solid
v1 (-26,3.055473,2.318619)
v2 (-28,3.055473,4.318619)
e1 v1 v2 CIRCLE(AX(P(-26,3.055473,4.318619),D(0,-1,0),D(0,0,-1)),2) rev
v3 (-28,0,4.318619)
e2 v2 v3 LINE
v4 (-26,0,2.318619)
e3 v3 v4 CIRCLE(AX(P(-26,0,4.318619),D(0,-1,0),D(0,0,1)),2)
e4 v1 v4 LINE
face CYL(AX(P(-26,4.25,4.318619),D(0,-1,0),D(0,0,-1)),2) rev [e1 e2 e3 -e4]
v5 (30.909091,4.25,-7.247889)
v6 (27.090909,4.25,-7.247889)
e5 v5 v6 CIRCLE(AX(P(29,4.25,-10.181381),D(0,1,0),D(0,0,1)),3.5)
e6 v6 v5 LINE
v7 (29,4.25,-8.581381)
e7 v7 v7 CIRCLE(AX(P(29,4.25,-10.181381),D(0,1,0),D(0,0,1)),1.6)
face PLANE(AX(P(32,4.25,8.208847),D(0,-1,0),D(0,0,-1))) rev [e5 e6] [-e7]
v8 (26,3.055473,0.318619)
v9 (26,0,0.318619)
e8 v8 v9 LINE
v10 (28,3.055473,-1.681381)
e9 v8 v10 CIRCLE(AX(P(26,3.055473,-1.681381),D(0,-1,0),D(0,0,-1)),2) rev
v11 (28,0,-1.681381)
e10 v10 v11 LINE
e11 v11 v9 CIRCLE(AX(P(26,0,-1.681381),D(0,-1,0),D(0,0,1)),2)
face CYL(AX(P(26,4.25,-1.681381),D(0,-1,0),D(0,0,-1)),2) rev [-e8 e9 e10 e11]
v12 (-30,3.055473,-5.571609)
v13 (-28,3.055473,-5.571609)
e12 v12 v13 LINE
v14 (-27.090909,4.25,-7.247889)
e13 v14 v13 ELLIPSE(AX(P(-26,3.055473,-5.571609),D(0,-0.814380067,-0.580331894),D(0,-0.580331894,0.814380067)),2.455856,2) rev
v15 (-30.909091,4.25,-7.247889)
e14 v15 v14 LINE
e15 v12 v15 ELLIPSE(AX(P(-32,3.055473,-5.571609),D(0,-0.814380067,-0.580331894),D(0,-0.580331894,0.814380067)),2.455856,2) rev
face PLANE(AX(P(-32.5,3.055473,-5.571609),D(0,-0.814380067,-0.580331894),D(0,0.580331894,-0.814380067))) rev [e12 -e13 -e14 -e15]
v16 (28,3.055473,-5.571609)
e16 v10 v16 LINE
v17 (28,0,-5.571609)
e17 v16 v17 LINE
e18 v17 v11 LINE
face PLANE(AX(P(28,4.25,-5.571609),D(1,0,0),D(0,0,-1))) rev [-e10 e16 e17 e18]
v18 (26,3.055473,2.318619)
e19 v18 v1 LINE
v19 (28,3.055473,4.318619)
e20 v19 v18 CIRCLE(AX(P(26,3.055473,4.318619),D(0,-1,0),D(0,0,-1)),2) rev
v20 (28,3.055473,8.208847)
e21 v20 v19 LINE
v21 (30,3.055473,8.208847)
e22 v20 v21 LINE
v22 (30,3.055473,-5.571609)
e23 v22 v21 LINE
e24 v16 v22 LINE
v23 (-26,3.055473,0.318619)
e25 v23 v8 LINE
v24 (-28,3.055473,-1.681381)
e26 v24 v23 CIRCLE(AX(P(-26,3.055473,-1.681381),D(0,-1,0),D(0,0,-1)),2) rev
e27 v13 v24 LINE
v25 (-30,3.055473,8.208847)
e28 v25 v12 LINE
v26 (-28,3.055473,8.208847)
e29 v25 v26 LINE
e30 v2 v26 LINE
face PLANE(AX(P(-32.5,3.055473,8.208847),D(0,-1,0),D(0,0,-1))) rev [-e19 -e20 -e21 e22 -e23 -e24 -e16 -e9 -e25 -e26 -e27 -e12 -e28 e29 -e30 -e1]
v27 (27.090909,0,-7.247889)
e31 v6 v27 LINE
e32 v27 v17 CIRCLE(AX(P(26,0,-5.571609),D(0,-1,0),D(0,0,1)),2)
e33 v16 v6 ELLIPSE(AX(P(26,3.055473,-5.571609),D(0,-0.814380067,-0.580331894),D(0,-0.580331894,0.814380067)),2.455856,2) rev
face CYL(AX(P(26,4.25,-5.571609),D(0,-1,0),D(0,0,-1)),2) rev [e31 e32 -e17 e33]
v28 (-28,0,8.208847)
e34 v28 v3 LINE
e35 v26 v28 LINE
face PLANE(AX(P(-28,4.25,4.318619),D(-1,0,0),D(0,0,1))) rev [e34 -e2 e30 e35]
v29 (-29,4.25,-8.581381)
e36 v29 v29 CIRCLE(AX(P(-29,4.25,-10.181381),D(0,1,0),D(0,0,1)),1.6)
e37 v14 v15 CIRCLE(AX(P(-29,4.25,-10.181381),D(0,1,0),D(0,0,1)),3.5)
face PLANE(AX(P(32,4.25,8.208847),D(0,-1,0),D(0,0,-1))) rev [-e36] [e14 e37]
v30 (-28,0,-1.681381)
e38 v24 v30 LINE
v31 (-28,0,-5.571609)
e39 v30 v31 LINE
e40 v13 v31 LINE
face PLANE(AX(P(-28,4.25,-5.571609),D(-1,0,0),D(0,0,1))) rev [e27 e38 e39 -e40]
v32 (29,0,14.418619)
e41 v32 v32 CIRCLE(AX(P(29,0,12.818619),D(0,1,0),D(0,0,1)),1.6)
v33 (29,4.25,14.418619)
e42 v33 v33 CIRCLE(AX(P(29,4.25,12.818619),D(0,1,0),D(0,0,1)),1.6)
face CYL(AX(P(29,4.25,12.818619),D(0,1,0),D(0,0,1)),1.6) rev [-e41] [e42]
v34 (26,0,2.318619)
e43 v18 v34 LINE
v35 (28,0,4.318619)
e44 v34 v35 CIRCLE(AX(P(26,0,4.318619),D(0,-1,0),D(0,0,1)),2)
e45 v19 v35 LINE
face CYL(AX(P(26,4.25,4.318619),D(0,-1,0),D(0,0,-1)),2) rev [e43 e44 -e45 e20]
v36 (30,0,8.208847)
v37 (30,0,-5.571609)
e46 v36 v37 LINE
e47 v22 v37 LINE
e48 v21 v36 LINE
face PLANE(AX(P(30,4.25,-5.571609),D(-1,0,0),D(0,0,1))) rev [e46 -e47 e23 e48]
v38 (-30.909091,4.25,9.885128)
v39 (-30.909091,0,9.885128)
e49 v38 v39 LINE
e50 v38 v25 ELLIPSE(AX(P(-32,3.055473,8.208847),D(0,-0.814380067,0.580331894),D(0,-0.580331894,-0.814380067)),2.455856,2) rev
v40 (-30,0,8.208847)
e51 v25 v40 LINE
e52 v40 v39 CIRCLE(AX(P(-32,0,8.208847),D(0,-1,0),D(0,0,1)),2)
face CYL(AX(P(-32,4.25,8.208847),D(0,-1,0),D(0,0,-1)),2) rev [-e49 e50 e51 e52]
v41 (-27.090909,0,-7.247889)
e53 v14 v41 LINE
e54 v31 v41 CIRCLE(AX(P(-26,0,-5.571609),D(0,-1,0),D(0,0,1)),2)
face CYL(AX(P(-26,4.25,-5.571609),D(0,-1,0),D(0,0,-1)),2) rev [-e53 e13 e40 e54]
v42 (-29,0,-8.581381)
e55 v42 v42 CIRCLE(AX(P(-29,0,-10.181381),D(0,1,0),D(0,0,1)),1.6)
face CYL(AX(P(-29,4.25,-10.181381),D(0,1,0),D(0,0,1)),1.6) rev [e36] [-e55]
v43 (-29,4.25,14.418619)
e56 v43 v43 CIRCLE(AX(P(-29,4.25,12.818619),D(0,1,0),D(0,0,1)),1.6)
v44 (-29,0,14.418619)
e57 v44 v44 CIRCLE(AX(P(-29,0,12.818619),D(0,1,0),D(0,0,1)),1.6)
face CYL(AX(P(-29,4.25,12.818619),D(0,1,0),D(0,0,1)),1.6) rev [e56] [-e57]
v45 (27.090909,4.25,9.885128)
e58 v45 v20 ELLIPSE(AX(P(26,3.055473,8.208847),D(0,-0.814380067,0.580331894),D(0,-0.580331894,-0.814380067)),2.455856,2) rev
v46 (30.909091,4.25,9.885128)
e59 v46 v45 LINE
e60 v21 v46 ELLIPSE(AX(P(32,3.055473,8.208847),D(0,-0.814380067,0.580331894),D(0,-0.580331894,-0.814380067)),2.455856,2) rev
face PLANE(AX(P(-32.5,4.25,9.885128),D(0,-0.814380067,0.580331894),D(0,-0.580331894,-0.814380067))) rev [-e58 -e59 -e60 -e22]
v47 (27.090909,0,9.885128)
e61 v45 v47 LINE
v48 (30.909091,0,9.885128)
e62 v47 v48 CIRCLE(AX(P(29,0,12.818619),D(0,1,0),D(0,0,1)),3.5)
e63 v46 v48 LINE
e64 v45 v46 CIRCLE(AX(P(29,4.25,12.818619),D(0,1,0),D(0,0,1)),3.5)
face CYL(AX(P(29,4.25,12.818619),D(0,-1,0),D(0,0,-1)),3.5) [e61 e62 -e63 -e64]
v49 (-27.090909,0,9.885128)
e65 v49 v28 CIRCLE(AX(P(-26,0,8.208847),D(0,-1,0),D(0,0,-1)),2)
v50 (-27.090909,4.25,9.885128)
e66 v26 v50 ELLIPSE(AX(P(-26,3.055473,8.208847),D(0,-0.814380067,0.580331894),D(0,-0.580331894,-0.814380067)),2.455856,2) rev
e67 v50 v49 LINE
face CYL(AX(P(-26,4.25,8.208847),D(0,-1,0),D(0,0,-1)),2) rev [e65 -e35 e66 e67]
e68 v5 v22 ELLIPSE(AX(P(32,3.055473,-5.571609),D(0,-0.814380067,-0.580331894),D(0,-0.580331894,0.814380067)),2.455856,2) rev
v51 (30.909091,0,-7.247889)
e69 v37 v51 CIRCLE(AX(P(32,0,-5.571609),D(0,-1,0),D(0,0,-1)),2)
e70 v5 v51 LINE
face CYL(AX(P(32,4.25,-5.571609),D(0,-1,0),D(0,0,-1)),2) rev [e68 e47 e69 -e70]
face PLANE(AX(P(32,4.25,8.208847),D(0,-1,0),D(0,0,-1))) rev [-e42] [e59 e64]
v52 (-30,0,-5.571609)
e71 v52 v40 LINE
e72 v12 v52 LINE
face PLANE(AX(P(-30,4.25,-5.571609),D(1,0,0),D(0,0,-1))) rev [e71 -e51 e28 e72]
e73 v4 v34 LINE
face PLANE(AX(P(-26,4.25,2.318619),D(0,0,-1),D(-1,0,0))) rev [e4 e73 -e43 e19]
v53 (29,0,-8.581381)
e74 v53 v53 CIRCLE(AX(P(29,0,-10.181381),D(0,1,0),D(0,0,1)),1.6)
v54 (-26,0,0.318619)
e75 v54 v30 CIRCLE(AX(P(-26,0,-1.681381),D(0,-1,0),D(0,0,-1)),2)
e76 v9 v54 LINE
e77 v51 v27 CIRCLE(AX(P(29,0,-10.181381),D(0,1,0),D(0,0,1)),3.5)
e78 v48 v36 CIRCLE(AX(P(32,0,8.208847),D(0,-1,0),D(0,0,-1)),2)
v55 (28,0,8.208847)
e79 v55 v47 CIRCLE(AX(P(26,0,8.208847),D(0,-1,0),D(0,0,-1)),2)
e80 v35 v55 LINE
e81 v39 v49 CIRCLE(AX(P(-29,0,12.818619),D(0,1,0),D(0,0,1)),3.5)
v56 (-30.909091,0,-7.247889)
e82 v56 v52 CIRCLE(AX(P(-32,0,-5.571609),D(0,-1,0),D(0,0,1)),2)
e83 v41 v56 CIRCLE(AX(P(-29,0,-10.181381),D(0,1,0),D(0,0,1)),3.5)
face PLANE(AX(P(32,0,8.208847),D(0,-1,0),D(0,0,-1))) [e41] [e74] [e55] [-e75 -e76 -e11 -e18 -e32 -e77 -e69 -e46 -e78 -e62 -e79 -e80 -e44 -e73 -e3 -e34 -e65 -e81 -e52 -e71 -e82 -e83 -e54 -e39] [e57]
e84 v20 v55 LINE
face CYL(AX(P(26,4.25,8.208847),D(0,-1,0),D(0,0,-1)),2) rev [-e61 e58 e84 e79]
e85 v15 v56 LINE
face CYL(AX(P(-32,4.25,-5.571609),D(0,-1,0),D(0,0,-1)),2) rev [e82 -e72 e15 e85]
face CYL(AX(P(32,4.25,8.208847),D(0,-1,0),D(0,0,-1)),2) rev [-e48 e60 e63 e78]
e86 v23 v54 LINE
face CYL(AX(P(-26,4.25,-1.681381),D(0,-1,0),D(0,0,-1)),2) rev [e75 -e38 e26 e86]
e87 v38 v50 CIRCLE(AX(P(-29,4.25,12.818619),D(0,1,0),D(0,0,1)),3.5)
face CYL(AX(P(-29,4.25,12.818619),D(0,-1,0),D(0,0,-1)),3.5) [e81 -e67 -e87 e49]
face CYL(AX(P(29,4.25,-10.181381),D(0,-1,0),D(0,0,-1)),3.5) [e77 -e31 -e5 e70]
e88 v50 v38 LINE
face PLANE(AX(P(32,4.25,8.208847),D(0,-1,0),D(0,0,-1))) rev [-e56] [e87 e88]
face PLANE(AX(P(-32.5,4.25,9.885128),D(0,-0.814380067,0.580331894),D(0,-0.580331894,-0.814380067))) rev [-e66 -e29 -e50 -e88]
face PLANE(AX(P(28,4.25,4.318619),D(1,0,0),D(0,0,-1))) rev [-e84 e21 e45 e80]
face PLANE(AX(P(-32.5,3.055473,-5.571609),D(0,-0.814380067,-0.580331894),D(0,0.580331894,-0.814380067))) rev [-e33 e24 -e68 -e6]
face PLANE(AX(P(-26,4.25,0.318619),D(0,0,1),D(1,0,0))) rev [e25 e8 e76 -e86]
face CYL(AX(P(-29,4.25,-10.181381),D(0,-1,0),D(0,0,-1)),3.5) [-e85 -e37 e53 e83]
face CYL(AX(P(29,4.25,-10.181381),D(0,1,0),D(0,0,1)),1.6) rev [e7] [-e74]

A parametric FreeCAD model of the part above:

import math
import FreeCAD as App
import Part
import Sketcher
Q = App.Units.Quantity

doc = App.newDocument("Part")
body = doc.addObject("PartDesign::Body", "Body")

# Sketch on XZ plane
sketch1 = doc.addObject("Sketcher::SketchObject", "Sketch")
body.addObject(sketch1)
sketch1.AttachmentSupport = (doc.XZ_Plane, [""])
sketch1.MapMode = "FlatFace"
sketch1.addGeometry(Part.LineSegment(App.Vector(-26, 2.318619, 0), App.Vector(26, 2.318619, 0)), False)
sketch1.addGeometry(Part.ArcOfCircle(Part.Circle(App.Vector(26, 4.318619, 0), App.Vector(0, 0, 1), 2), math.radians(-90), math.radians(0)), False)
sketch1.addGeometry(Part.LineSegment(App.Vector(28, 4.318619, 0), App.Vector(28, 8.208847, 0)), False)
sketch1.addGeometry(Part.ArcOfCircle(Part.Circle(App.Vector(26, 8.208847, 0), App.Vector(0, 0, 1), 2), math.radians(0), math.radians(56.944269)), False)
sketch1.addGeometry(Part.ArcOfCircle(Part.Circle(App.Vector(29, 12.818619, 0), App.Vector(0, 0, 1), 3.5), math.radians(-56.944269), math.radians(236.944269)), False)
sketch1.addGeometry(Part.ArcOfCircle(Part.Circle(App.Vector(32, 8.208847, 0), App.Vector(0, 0, 1), 2), math.radians(123.055731), math.radians(180)), False)
sketch1.addGeometry(Part.LineSegment(App.Vector(30, 8.208847, 0), App.Vector(30, -5.571609, 0)), False)
sketch1.addGeometry(Part.ArcOfCircle(Part.Circle(App.Vector(32, -5.571609, 0), App.Vector(0, 0, 1), 2), math.radians(180), math.radians(236.944269)), False)
sketch1.addGeometry(Part.ArcOfCircle(Part.Circle(App.Vector(29, -10.181381, 0), App.Vector(0, 0, 1), 3.5), math.radians(123.055731), math.radians(416.944269)), False)
sketch1.addGeometry(Part.ArcOfCircle(Part.Circle(App.Vector(26, -5.571609, 0), App.Vector(0, 0, 1), 2), math.radians(-56.944269), math.radians(0)), False)
sketch1.addGeometry(Part.LineSegment(App.Vector(28, -5.571609, 0), App.Vector(28, -1.681381, 0)), False)
sketch1.addGeometry(Part.ArcOfCircle(Part.Circle(App.Vector(26, -1.681381, 0), App.Vector(0, 0, 1), 2), math.radians(0), math.radians(90)), False)
sketch1.addGeometry(Part.LineSegment(App.Vector(26, 0.318619, 0), App.Vector(-26, 0.318619, 0)), False)
sketch1.addGeometry(Part.ArcOfCircle(Part.Circle(App.Vector(-26, -1.681381, 0), App.Vector(0, 0, 1), 2), math.radians(90), math.radians(180)), False)
sketch1.addGeometry(Part.LineSegment(App.Vector(-28, -1.681381, 0), App.Vector(-28, -5.571609, 0)), False)
sketch1.addGeometry(Part.ArcOfCircle(Part.Circle(App.Vector(-26, -5.571609, 0), App.Vector(0, 0, 1), 2), math.radians(180), math.radians(236.944269)), False)
sketch1.addGeometry(Part.ArcOfCircle(Part.Circle(App.Vector(-29, -10.181381, 0), App.Vector(0, 0, 1), 3.5), math.radians(123.055731), math.radians(416.944269)), False)
sketch1.addGeometry(Part.ArcOfCircle(Part.Circle(App.Vector(-32, -5.571609, 0), App.Vector(0, 0, 1), 2), math.radians(-56.944269), math.radians(0)), False)
sketch1.addGeometry(Part.LineSegment(App.Vector(-30, -5.571609, 0), App.Vector(-30, 8.208847, 0)), False)
sketch1.addGeometry(Part.ArcOfCircle(Part.Circle(App.Vector(-32, 8.208847, 0), App.Vector(0, 0, 1), 2), math.radians(0), math.radians(56.944269)), False)
sketch1.addGeometry(Part.ArcOfCircle(Part.Circle(App.Vector(-29, 12.818619, 0), App.Vector(0, 0, 1), 3.5), math.radians(-56.944269), math.radians(236.944269)), False)
sketch1.addGeometry(Part.ArcOfCircle(Part.Circle(App.Vector(-26, 8.208847, 0), App.Vector(0, 0, 1), 2), math.radians(123.055731), math.radians(180)), False)
sketch1.addGeometry(Part.LineSegment(App.Vector(-28, 8.208847, 0), App.Vector(-28, 4.318619, 0)), False)
sketch1.addGeometry(Part.ArcOfCircle(Part.Circle(App.Vector(-26, 4.318619, 0), App.Vector(0, 0, 1), 2), math.radians(-180), math.radians(-90)), False)
sketch1.addConstraint(Sketcher.Constraint("Tangent", 0, 2, 1, 1))
sketch1.addConstraint(Sketcher.Constraint("Tangent", 1, 2, 2, 1))
sketch1.addConstraint(Sketcher.Constraint("Tangent", 2, 2, 3, 1))
sketch1.addConstraint(Sketcher.Constraint("Tangent", 3, 2, 4, 2))
sketch1.addConstraint(Sketcher.Constraint("Tangent", 4, 1, 5, 1))
sketch1.addConstraint(Sketcher.Constraint("Tangent", 5, 2, 6, 1))
sketch1.addConstraint(Sketcher.Constraint("Tangent", 6, 2, 7, 1))
sketch1.addConstraint(Sketcher.Constraint("Tangent", 7, 2, 8, 2))
sketch1.addConstraint(Sketcher.Constraint("Tangent", 8, 1, 9, 1))
sketch1.addConstraint(Sketcher.Constraint("Tangent", 9, 2, 10, 1))
sketch1.addConstraint(Sketcher.Constraint("Tangent", 10, 2, 11, 1))
sketch1.addConstraint(Sketcher.Constraint("Tangent", 11, 2, 12, 1))
sketch1.addConstraint(Sketcher.Constraint("Tangent", 12, 2, 13, 1))
sketch1.addConstraint(Sketcher.Constraint("Tangent", 13, 2, 14, 1))
sketch1.addConstraint(Sketcher.Constraint("Tangent", 14, 2, 15, 1))
sketch1.addConstraint(Sketcher.Constraint("Tangent", 15, 2, 16, 2))
sketch1.addConstraint(Sketcher.Constraint("Tangent", 16, 1, 17, 1))
sketch1.addConstraint(Sketcher.Constraint("Tangent", 17, 2, 18, 1))
sketch1.addConstraint(Sketcher.Constraint("Tangent", 18, 2, 19, 1))
sketch1.addConstraint(Sketcher.Constraint("Tangent", 19, 2, 20, 2))
sketch1.addConstraint(Sketcher.Constraint("Tangent", 20, 1, 21, 1))
sketch1.addConstraint(Sketcher.Constraint("Tangent", 21, 2, 22, 1))
sketch1.addConstraint(Sketcher.Constraint("Tangent", 22, 2, 23, 1))
sketch1.addConstraint(Sketcher.Constraint("Tangent", 23, 2, 0, 1))
sketch1.addConstraint(Sketcher.Constraint("Horizontal", 0))
sketch1.addConstraint(Sketcher.Constraint("Vertical", 2))
sketch1.addConstraint(Sketcher.Constraint("Vertical", 6))
sketch1.addConstraint(Sketcher.Constraint("Vertical", 10))
sketch1.addConstraint(Sketcher.Constraint("Horizontal", 12))
sketch1.addConstraint(Sketcher.Constraint("Vertical", 14))
sketch1.addConstraint(Sketcher.Constraint("Vertical", 18))
sketch1.addConstraint(Sketcher.Constraint("Vertical", 22))
sketch1.addConstraint(Sketcher.Constraint("Equal", 1, 3))
sketch1.addConstraint(Sketcher.Constraint("Equal", 3, 5))
sketch1.addConstraint(Sketcher.Constraint("Equal", 5, 7))
sketch1.addConstraint(Sketcher.Constraint("Equal", 4, 8))
sketch1.addConstraint(Sketcher.Constraint("Equal", 7, 9))
sketch1.addConstraint(Sketcher.Constraint("Equal", 9, 11))
sketch1.addConstraint(Sketcher.Constraint("Equal", 11, 13))
sketch1.addConstraint(Sketcher.Constraint("Equal", 13, 15))
sketch1.addConstraint(Sketcher.Constraint("Equal", 8, 16))
sketch1.addConstraint(Sketcher.Constraint("Equal", 15, 17))
sketch1.addConstraint(Sketcher.Constraint("Equal", 17, 19))
sketch1.addConstraint(Sketcher.Constraint("Equal", 16, 20))
sketch1.addConstraint(Sketcher.Constraint("Equal", 19, 21))
sketch1.addConstraint(Sketcher.Constraint("Equal", 21, 23))
sketch1.addConstraint(Sketcher.Constraint("Symmetric", 9, 3, 15, 3, -2))
sketch1.addConstraint(Sketcher.Constraint("Symmetric", 7, 3, 17, 3, -2))
sketch1.addConstraint(Sketcher.Constraint("Symmetric", 4, 3, 20, 3, -2))
sketch1.addConstraint(Sketcher.Constraint("Horizontal", 3, 3, 5, 3))
sketch1.addConstraint(Sketcher.Constraint("Horizontal", 7, 3, 9, 3))
sketch1.addConstraint(Sketcher.Constraint("Horizontal", 19, 3, 21, 3))
sketch1.addConstraint(Sketcher.Constraint("Vertical", 4, 3, 8, 3))
sketch1.addConstraint(Sketcher.Constraint("Equal", 2, 10))
sketch1.addConstraint(Sketcher.Constraint("Radius", 1, Q("2 mm")))
sketch1.addConstraint(Sketcher.Constraint("Radius", 4, Q("3.5 mm")))
sketch1.addConstraint(Sketcher.Constraint("DistanceX", 0, 1, 0, 2, Q("52 mm")))
sketch1.addConstraint(Sketcher.Constraint("DistanceX", -1, 1, 4, 3, Q("29 mm")))
sketch1.addConstraint(Sketcher.Constraint("DistanceY", 8, 3, 4, 3, Q("23 mm")))
sketch1.addConstraint(Sketcher.Constraint("DistanceY", 11, 3, 1, 3, Q("6 mm")))
sketch1.addConstraint(Sketcher.Constraint("DistanceY", -1, 1, 1, 3, Q("4.318619 mm")))
pad1 = doc.addObject("PartDesign::Pad", "Pad")
body.addObject(pad1)
pad1.Profile = sketch1
pad1.Length = 4.25
pad1.Reversed = True

# Sketch on XZ plane
sketch2 = doc.addObject("Sketcher::SketchObject", "Sketch001")
body.addObject(sketch2)
sketch2.AttachmentSupport = (doc.XZ_Plane, [""])
sketch2.MapMode = "FlatFace"
sketch2.AttachmentOffset = App.Placement(App.Vector(0, 0, -4.25), App.Rotation())
sketch2.addGeometry(Part.Circle(App.Vector(-29, 12.818619, 0), App.Vector(0, 0, 1), 1.6), False)
sketch2.addGeometry(Part.Circle(App.Vector(-29, -10.181381, 0), App.Vector(0, 0, 1), 1.6), False)
sketch2.addGeometry(Part.Circle(App.Vector(29, -10.181381, 0), App.Vector(0, 0, 1), 1.6), False)
sketch2.addGeometry(Part.Circle(App.Vector(29, 12.818619, 0), App.Vector(0, 0, 1), 1.6), False)
sketch2.addConstraint(Sketcher.Constraint("Equal", 0, 1))
sketch2.addConstraint(Sketcher.Constraint("Equal", 1, 2))
sketch2.addConstraint(Sketcher.Constraint("Equal", 2, 3))
sketch2.addConstraint(Sketcher.Constraint("Symmetric", 1, 3, 2, 3, -2))
sketch2.addConstraint(Sketcher.Constraint("Symmetric", 0, 3, 3, 3, -2))
sketch2.addConstraint(Sketcher.Constraint("Vertical", 0, 3, 1, 3))
sketch2.addConstraint(Sketcher.Constraint("Diameter", 0, Q("3.2 mm")))
sketch2.addConstraint(Sketcher.Constraint("DistanceX", 0, 3, -1, 1, Q("29 mm")))
sketch2.addConstraint(Sketcher.Constraint("DistanceY", 1, 3, 0, 3, Q("23 mm")))
sketch2.addConstraint(Sketcher.Constraint("DistanceY", -1, 1, 0, 3, Q("12.818619 mm")))
doc.recompute()
hole = doc.addObject("PartDesign::Hole", "Hole")
body.addObject(hole)
hole.Profile = sketch2
hole.ThreadType = "None"
hole.Diameter = 3.2
hole.DepthType = "ThroughAll"
hole.Reversed = True

# Sketch on YZ plane
sketch3 = doc.addObject("Sketcher::SketchObject", "Sketch002")
body.addObject(sketch3)
sketch3.AttachmentSupport = (doc.YZ_Plane, [""])
sketch3.MapMode = "FlatFace"
sketch3.addGeometry(Part.LineSegment(App.Vector(3.055473, 8.208847, 0), App.Vector(3.055473, -5.571609, 0)), False)
sketch3.addGeometry(Part.LineSegment(App.Vector(3.055473, -5.571609, 0), App.Vector(4.25, -7.247889, 0)), False)
sketch3.addGeometry(Part.LineSegment(App.Vector(4.25, -7.247889, 0), App.Vector(4.25, 9.885128, 0)), False)
sketch3.addGeometry(Part.LineSegment(App.Vector(4.25, 9.885128, 0), App.Vector(3.055473, 8.208847, 0)), False)
sketch3.addConstraint(Sketcher.Constraint("Coincident", 0, 2, 1, 1))
sketch3.addConstraint(Sketcher.Constraint("Coincident", 1, 2, 2, 1))
sketch3.addConstraint(Sketcher.Constraint("Coincident", 2, 2, 3, 1))
sketch3.addConstraint(Sketcher.Constraint("Coincident", 3, 2, 0, 1))
sketch3.addConstraint(Sketcher.Constraint("Vertical", 0))
sketch3.addConstraint(Sketcher.Constraint("Vertical", 2))
sketch3.addConstraint(Sketcher.Constraint("Equal", 1, 3))
sketch3.addConstraint(Sketcher.Constraint("DistanceX", -1, 1, 1, 2, Q("4.25 mm")))
sketch3.addConstraint(Sketcher.Constraint("Distance", 1, Q("2.058352 mm")))
sketch3.addConstraint(Sketcher.Constraint("DistanceY", 0, 2, 0, 1, Q("13.780456 mm")))
sketch3.addConstraint(Sketcher.Constraint("DistanceY", 2, 1, 2, 2, Q("17.133017 mm")))
sketch3.addConstraint(Sketcher.Constraint("DistanceY", 0, 2, -1, 1, Q("5.571609 mm")))
pocket1 = doc.addObject("PartDesign::Pocket", "Pocket")
body.addObject(pocket1)
pocket1.Profile = sketch3
pocket1.Type = "ThroughAll"
pocket1.Midplane = True

doc.recompute()
